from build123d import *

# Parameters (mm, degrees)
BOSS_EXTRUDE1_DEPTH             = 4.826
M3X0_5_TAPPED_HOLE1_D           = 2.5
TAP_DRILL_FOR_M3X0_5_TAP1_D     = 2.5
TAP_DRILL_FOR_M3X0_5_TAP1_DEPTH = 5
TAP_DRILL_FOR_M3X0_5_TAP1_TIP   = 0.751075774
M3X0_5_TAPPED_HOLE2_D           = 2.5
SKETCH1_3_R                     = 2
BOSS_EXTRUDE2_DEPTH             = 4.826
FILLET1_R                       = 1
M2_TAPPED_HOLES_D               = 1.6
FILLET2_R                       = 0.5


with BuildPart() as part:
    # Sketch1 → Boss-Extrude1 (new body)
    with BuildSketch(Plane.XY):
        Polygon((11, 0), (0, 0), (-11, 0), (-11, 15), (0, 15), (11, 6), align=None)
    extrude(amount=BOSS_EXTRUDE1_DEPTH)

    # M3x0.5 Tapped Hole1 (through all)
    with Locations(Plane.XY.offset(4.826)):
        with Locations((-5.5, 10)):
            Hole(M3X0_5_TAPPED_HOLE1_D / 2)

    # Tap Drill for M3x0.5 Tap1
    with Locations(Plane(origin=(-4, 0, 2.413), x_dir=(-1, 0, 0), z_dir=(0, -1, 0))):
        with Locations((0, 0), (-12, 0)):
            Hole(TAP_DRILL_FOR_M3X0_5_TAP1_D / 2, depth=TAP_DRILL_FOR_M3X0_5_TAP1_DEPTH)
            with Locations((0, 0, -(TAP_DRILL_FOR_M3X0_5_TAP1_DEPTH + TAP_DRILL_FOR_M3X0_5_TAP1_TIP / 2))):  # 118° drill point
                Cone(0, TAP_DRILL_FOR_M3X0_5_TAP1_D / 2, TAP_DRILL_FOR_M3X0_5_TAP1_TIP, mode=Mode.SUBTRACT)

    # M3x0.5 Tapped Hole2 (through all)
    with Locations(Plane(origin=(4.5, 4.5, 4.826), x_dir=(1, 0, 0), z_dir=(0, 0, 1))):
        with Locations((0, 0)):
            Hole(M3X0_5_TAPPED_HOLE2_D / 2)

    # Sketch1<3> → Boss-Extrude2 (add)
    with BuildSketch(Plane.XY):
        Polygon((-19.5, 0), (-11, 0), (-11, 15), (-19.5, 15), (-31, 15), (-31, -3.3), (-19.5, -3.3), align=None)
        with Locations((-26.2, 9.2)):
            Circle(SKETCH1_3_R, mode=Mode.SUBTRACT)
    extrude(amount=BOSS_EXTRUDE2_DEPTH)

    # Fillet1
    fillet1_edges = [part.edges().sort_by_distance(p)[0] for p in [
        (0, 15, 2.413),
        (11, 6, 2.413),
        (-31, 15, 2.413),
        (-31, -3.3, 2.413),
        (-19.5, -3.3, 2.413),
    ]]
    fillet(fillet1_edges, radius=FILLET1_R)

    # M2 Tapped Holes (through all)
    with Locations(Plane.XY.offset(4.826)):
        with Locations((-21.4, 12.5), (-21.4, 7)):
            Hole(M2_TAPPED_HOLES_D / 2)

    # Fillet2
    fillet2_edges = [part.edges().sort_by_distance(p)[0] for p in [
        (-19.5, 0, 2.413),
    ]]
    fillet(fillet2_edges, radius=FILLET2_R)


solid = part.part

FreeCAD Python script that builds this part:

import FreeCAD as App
import Part
import Sketcher

V = App.Vector
Q = App.Units.Quantity


def edges_at(feature, points):
    """Names of the edges that pass closest to the given points."""
    edges = feature.Shape.Edges
    near = lambda p: min(range(len(edges)), key=lambda i: edges[i].distToShape(Part.Vertex(*p))[0])
    return sorted({f"Edge{near(p) + 1}" for p in points})

doc = App.newDocument("Part")
body = doc.addObject("PartDesign::Body", "Body")

sketch1 = body.newObject("Sketcher::SketchObject", "Sketch")
sketch1.AttachmentSupport = (doc.getObject("XY_Plane"), [""])
sketch1.MapMode = "FlatFace"
sketch1.addGeometry([
    Part.LineSegment(V(-11, 0, 0), V(11, 0, 0)),
    Part.LineSegment(V(11, 0, 0), V(11, 6, 0)),
    Part.LineSegment(V(11, 6, 0), V(0, 15, 0)),
    Part.LineSegment(V(0, 15, 0), V(-11, 15, 0)),
    Part.LineSegment(V(-11, 15, 0), V(-11, 0, 0)),
], False)
sketch1.addConstraint([
    Sketcher.Constraint("Coincident", 0, 2, 1, 1),
    Sketcher.Constraint("Coincident", 1, 2, 2, 1),
    Sketcher.Constraint("Coincident", 2, 2, 3, 1),
    Sketcher.Constraint("Coincident", 3, 2, 4, 1),
    Sketcher.Constraint("Coincident", 4, 2, 0, 1),
    Sketcher.Constraint("Horizontal", 0),
    Sketcher.Constraint("Vertical", 1),
    Sketcher.Constraint("Horizontal", 3),
    Sketcher.Constraint("Vertical", 4),
    Sketcher.Constraint("Symmetric", 0, 2, 4, 2, -1, 1),
    Sketcher.Constraint("PointOnObject", 2, 2, -2),
    Sketcher.Constraint("DistanceX", 0, 1, 0, 2, Q("22 mm")),
    Sketcher.Constraint("DistanceY", 1, 1, 1, 2, Q("6 mm")),
    Sketcher.Constraint("DistanceY", 4, 2, 4, 1, Q("15 mm")),
])
pad1 = body.newObject("PartDesign::Pad", "Pad")
pad1.Profile = sketch1
pad1.Length = 4.826

sketch2 = body.newObject("Sketcher::SketchObject", "Sketch001")
sketch2.AttachmentSupport = (doc.getObject("XY_Plane"), [""])
sketch2.MapMode = "FlatFace"
sketch2.AttachmentOffset = App.Placement(V(0, 0, 4.826), App.Rotation())
sketch2.addGeometry(Part.Circle(V(-5.5, 10, 0), V(0, 0, 1), 1.2), False)
sketch2.addConstraint([
    Sketcher.Constraint("Diameter", 0, Q("2.5 mm")),
    Sketcher.Constraint("DistanceY", -1, 1, 0, 3, Q("10 mm")),
    Sketcher.Constraint("DistanceX", 0, 3, -1, 1, Q("5.5 mm")),
])
doc.recompute()
hole = body.newObject("PartDesign::Hole", "Hole")
hole.Profile = sketch2
hole.ThreadType = "None"
hole.Diameter = 2.5
hole.DepthType = "ThroughAll"

sketch3 = body.newObject("Sketcher::SketchObject", "Sketch002")
sketch3.AttachmentSupport = (doc.getObject("XZ_Plane"), [""])
sketch3.MapMode = "FlatFace"
sketch3.addGeometry([
    Part.Circle(V(-4, 2.4, 0), V(0, 0, 1), 1.2),
    Part.Circle(V(8, 2.4, 0), V(0, 0, 1), 1.2),
], False)
sketch3.addConstraint([
    Sketcher.Constraint("Equal", 0, 1),
    Sketcher.Constraint("Horizontal", 0, 3, 1, 3),
    Sketcher.Constraint("Diameter", 0, Q("2.5 mm")),
    Sketcher.Constraint("DistanceX", 0, 3, -1, 1, Q("4 mm")),
    Sketcher.Constraint("DistanceX", -1, 1, 1, 3, Q("8 mm")),
    Sketcher.Constraint("DistanceY", -1, 1, 0, 3, Q("2.413 mm")),
])
doc.recompute()
hole2 = body.newObject("PartDesign::Hole", "Hole001")
hole2.Profile = sketch3
hole2.ThreadType = "None"
hole2.Diameter = 2.5
hole2.DepthType = "Dimension"
hole2.Depth = 5
hole2.DrillPoint = "Angled"
hole2.DrillPointAngle = 118

sketch4 = body.newObject("Sketcher::SketchObject", "Sketch003")
sketch4.AttachmentSupport = (doc.getObject("XY_Plane"), [""])
sketch4.MapMode = "FlatFace"
sketch4.AttachmentOffset = App.Placement(V(0, 0, 4.826), App.Rotation())
sketch4.addGeometry(Part.Circle(V(4.5, 4.5, 0), V(0, 0, 1), 1.2), False)
sketch4.addConstraint([
    Sketcher.Constraint("Diameter", 0, Q("2.5 mm")),
    Sketcher.Constraint("DistanceX", -1, 1, 0, 3, Q("4.5 mm")),
    Sketcher.Constraint("DistanceY", -1, 1, 0, 3, Q("4.5 mm")),
])
doc.recompute()
hole3 = body.newObject("PartDesign::Hole", "Hole002")
hole3.Profile = sketch4
hole3.ThreadType = "None"
hole3.Diameter = 2.5
hole3.DepthType = "ThroughAll"

sketch5 = body.newObject("Sketcher::SketchObject", "Sketch004")
sketch5.AttachmentSupport = (doc.getObject("XY_Plane"), [""])
sketch5.MapMode = "FlatFace"
sketch5.addGeometry([
    Part.LineSegment(V(-19.5, 0, 0), V(-11, 0, 0)),
    Part.LineSegment(V(-11, 0, 0), V(-11, 15, 0)),
    Part.LineSegment(V(-11, 15, 0), V(-31, 15, 0)),
    Part.LineSegment(V(-31, 15, 0), V(-31, -3.3, 0)),
    Part.LineSegment(V(-31, -3.3, 0), V(-19.5, -3.3, 0)),
    Part.LineSegment(V(-19.5, -3.3, 0), V(-19.5, 0, 0)),
    Part.Circle(V(-26.2, 9.2, 0), V(0, 0, 1), 2),
], False)
sketch5.addConstraint([
    Sketcher.Constraint("Coincident", 0, 2, 1, 1),
    Sketcher.Constraint("Coincident", 1, 2, 2, 1),
    Sketcher.Constraint("Coincident", 2, 2, 3, 1),
    Sketcher.Constraint("Coincident", 3, 2, 4, 1),
    Sketcher.Constraint("Coincident", 4, 2, 5, 1),
    Sketcher.Constraint("Coincident", 5, 2, 0, 1),
    Sketcher.Constraint("Horizontal", 0),
    Sketcher.Constraint("Vertical", 1),
    Sketcher.Constraint("Horizontal", 2),
    Sketcher.Constraint("Vertical", 3),
    Sketcher.Constraint("Horizontal", 4),
    Sketcher.Constraint("Vertical", 5),
    Sketcher.Constraint("PointOnObject", 0, 2, -1),
    Sketcher.Constraint("Diameter", 6, Q("4 mm")),
    Sketcher.Constraint("DistanceX", 2, 2, 2, 1, Q("20 mm")),
    Sketcher.Constraint("DistanceY", 1, 1, 1, 2, Q("15 mm")),
    Sketcher.Constraint("DistanceX", 0, 1, 0, 2, Q("8.5 mm")),
    Sketcher.Constraint("DistanceY", 3, 2, 3, 1, Q("18.3 mm")),
    Sketcher.Constraint("DistanceX", 0, 2, -1, 1, Q("11 mm")),
    Sketcher.Constraint("DistanceX", 6, 3, -1, 1, Q("26.2 mm")),
    Sketcher.Constraint("DistanceY", -1, 1, 6, 3, Q("9.2 mm")),
])
pad2 = body.newObject("PartDesign::Pad", "Pad001")
pad2.Profile = sketch5
pad2.Length = 4.826
doc.recompute()

fillet = body.newObject("PartDesign::Fillet", "Fillet")
fillet.Base = (pad2, edges_at(pad2, [
    (0, 15, 2.413),
    (11, 6, 2.413),
    (-31, 15, 2.413),
    (-31, -3.3, 2.413),
    (-19.5, -3.3, 2.413),
]))
fillet.Radius = 1

sketch6 = body.newObject("Sketcher::SketchObject", "Sketch005")
sketch6.AttachmentSupport = (doc.getObject("XY_Plane"), [""])
sketch6.MapMode = "FlatFace"
sketch6.AttachmentOffset = App.Placement(V(0, 0, 4.826), App.Rotation())
sketch6.addGeometry([
    Part.Circle(V(-21.4, 12.5, 0), V(0, 0, 1), 0.8),
    Part.Circle(V(-21.4, 7, 0), V(0, 0, 1), 0.8),
], False)
sketch6.addConstraint([
    Sketcher.Constraint("Equal", 0, 1),
    Sketcher.Constraint("Vertical", 0, 3, 1, 3),
    Sketcher.Constraint("Diameter", 0, Q("1.6 mm")),
    Sketcher.Constraint("DistanceY", -1, 1, 1, 3, Q("7 mm")),
    Sketcher.Constraint("DistanceX", 0, 3, -1, 1, Q("21.4 mm")),
    Sketcher.Constraint("DistanceY", -1, 1, 0, 3, Q("12.5 mm")),
])
doc.recompute()
hole4 = body.newObject("PartDesign::Hole", "Hole003")
hole4.Profile = sketch6
hole4.ThreadType = "None"
hole4.Diameter = 1.6
hole4.DepthType = "ThroughAll"
doc.recompute()

fillet2 = body.newObject("PartDesign::Fillet", "Fillet001")
fillet2.Base = (hole4, edges_at(hole4, [(-19.5, 0, 2.413)]))
fillet2.Radius = 0.5

doc.recompute()
